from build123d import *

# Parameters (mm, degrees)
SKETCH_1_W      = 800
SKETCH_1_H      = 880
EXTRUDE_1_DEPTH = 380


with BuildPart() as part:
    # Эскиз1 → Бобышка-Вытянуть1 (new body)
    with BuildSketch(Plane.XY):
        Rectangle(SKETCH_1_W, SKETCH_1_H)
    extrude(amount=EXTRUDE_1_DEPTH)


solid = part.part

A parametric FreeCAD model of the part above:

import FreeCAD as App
import Part
import Sketcher

V = App.Vector


def add_polygon(sketch, points):
    """Adds a closed chain of lines whose ends are joined by coincident constraints."""
    first, n = sketch.GeometryCount, len(points)
    for a, b in zip(points, points[1:] + points[:1]):
        sketch.addGeometry(Part.LineSegment(App.Vector(*a, 0), App.Vector(*b, 0)), False)
    for i in range(n):
        sketch.addConstraint(Sketcher.Constraint("Coincident", first + i, 2, first + (i + 1) % n, 1))

doc = App.newDocument("Part")
body = doc.addObject("PartDesign::Body", "Body")

sketch1 = body.newObject("Sketcher::SketchObject", "Sketch")
sketch1.AttachmentSupport = (doc.getObject("XY_Plane"), [""])
sketch1.MapMode = "FlatFace"
add_polygon(sketch1, [(-400, 440), (-400, -440), (400, -440), (400, 440)])
sketch1.addConstraint(Sketcher.Constraint("Vertical", 0))
sketch1.addConstraint(Sketcher.Constraint("Horizontal", 1))
sketch1.addConstraint(Sketcher.Constraint("Vertical", 2))
sketch1.addConstraint(Sketcher.Constraint("Horizontal", 3))
sketch1.addConstraint(Sketcher.Constraint("Symmetric", 0, 2, 2, 2, -1, 1))
sketch1.addConstraint(Sketcher.Constraint("DistanceX", 1, 1, 1, 2, 800.0))
sketch1.addConstraint(Sketcher.Constraint("DistanceY", 0, 2, 0, 1, 880.0))
pad1 = body.newObject("PartDesign::Pad", "Pad")
pad1.Profile = sketch1
pad1.Length = 380

doc.recompute()
